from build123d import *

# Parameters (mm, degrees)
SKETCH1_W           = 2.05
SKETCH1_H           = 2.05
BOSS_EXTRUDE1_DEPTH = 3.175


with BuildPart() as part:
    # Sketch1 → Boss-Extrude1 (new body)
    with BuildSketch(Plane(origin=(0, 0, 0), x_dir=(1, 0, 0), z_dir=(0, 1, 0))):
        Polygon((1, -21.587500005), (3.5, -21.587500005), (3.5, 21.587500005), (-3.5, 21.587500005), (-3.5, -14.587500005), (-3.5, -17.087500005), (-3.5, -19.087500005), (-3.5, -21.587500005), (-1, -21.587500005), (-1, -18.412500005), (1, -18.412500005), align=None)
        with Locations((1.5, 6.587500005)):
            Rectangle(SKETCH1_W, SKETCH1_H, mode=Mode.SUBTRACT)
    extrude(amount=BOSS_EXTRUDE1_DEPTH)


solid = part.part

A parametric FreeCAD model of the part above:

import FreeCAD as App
import Part
import Sketcher

V = App.Vector

doc = App.newDocument("Part")
body = doc.addObject("PartDesign::Body", "Body")

# Sketch on XZ plane
sketch1 = body.newObject("Sketcher::SketchObject", "Sketch")
sketch1.AttachmentSupport = (doc.getObject("XZ_Plane"), [""])
sketch1.MapMode = "FlatFace"
sketch1.addGeometry([
    Part.LineSegment(V(1, 21.6, 0), V(3.5, 21.6, 0)),  # 0
    Part.LineSegment(V(3.5, 21.6, 0), V(3.5, -21.6, 0)),  # 1
    Part.LineSegment(V(3.5, -21.6, 0), V(-3.5, -21.6, 0)),  # 2
    Part.LineSegment(V(-3.5, -21.6, 0), V(-3.5, 21.6, 0)),  # 3
    Part.LineSegment(V(-3.5, 21.6, 0), V(-1, 21.6, 0)),  # 4
    Part.LineSegment(V(-1, 21.6, 0), V(-1, 18.4, 0)),  # 5
    Part.LineSegment(V(-1, 18.4, 0), V(1, 18.4, 0)),  # 6
    Part.LineSegment(V(1, 18.4, 0), V(1, 21.6, 0)),  # 7
    Part.LineSegment(V(2.5, -5.6, 0), V(0.5, -5.6, 0)),  # 8
    Part.LineSegment(V(0.5, -5.6, 0), V(0.5, -7.6, 0)),  # 9
    Part.LineSegment(V(0.5, -7.6, 0), V(2.5, -7.6, 0)),  # 10
    Part.LineSegment(V(2.5, -7.6, 0), V(2.5, -5.6, 0)),  # 11
], False)
sketch1.addConstraint([
    Sketcher.Constraint("Coincident", 0, 2, 1, 1),
    Sketcher.Constraint("Coincident", 1, 2, 2, 1),
    Sketcher.Constraint("Coincident", 2, 2, 3, 1),
    Sketcher.Constraint("Coincident", 3, 2, 4, 1),
    Sketcher.Constraint("Coincident", 4, 2, 5, 1),
    Sketcher.Constraint("Coincident", 5, 2, 6, 1),
    Sketcher.Constraint("Coincident", 6, 2, 7, 1),
    Sketcher.Constraint("Coincident", 7, 2, 0, 1),
    Sketcher.Constraint("Coincident", 8, 2, 9, 1),
    Sketcher.Constraint("Coincident", 9, 2, 10, 1),
    Sketcher.Constraint("Coincident", 10, 2, 11, 1),
    Sketcher.Constraint("Coincident", 11, 2, 8, 1),
    Sketcher.Constraint("Horizontal", 0),
    Sketcher.Constraint("Vertical", 1),
    Sketcher.Constraint("Horizontal", 2),
    Sketcher.Constraint("Vertical", 3),
    Sketcher.Constraint("Horizontal", 4),
    Sketcher.Constraint("Vertical", 5),
    Sketcher.Constraint("Horizontal", 6),
    Sketcher.Constraint("Vertical", 7),
    Sketcher.Constraint("Horizontal", 8),
    Sketcher.Constraint("Vertical", 9),
    Sketcher.Constraint("Horizontal", 10),
    Sketcher.Constraint("Vertical", 11),
    Sketcher.Constraint("Symmetric", 0, 2, 2, 2, -1, 1),
    Sketcher.Constraint("Symmetric", 4, 2, 7, 2, -2),
    Sketcher.Constraint("Equal", 10, 9),
    Sketcher.Constraint("DistanceX", 2, 2, 2, 1, 7.0),
    Sketcher.Constraint("DistanceX", 6, 1, 6, 2, 2.0),
    Sketcher.Constraint("DistanceY", 2, 2, 5, 2, 40.0),
    Sketcher.Constraint("DistanceX", 8, 2, 8, 1, 2.05),
    Sketcher.Constraint("DistanceY", 1, 2, 1, 1, 43.175),
    Sketcher.Constraint("DistanceY", 8, 2, 7, 2, 27.15),
    Sketcher.Constraint("DistanceX", -1, 1, 8, 2, 0.475),
])
pad1 = body.newObject("PartDesign::Pad", "Pad")
pad1.Profile = sketch1
pad1.Length = 3.175
pad1.Reversed = True

doc.recompute()
